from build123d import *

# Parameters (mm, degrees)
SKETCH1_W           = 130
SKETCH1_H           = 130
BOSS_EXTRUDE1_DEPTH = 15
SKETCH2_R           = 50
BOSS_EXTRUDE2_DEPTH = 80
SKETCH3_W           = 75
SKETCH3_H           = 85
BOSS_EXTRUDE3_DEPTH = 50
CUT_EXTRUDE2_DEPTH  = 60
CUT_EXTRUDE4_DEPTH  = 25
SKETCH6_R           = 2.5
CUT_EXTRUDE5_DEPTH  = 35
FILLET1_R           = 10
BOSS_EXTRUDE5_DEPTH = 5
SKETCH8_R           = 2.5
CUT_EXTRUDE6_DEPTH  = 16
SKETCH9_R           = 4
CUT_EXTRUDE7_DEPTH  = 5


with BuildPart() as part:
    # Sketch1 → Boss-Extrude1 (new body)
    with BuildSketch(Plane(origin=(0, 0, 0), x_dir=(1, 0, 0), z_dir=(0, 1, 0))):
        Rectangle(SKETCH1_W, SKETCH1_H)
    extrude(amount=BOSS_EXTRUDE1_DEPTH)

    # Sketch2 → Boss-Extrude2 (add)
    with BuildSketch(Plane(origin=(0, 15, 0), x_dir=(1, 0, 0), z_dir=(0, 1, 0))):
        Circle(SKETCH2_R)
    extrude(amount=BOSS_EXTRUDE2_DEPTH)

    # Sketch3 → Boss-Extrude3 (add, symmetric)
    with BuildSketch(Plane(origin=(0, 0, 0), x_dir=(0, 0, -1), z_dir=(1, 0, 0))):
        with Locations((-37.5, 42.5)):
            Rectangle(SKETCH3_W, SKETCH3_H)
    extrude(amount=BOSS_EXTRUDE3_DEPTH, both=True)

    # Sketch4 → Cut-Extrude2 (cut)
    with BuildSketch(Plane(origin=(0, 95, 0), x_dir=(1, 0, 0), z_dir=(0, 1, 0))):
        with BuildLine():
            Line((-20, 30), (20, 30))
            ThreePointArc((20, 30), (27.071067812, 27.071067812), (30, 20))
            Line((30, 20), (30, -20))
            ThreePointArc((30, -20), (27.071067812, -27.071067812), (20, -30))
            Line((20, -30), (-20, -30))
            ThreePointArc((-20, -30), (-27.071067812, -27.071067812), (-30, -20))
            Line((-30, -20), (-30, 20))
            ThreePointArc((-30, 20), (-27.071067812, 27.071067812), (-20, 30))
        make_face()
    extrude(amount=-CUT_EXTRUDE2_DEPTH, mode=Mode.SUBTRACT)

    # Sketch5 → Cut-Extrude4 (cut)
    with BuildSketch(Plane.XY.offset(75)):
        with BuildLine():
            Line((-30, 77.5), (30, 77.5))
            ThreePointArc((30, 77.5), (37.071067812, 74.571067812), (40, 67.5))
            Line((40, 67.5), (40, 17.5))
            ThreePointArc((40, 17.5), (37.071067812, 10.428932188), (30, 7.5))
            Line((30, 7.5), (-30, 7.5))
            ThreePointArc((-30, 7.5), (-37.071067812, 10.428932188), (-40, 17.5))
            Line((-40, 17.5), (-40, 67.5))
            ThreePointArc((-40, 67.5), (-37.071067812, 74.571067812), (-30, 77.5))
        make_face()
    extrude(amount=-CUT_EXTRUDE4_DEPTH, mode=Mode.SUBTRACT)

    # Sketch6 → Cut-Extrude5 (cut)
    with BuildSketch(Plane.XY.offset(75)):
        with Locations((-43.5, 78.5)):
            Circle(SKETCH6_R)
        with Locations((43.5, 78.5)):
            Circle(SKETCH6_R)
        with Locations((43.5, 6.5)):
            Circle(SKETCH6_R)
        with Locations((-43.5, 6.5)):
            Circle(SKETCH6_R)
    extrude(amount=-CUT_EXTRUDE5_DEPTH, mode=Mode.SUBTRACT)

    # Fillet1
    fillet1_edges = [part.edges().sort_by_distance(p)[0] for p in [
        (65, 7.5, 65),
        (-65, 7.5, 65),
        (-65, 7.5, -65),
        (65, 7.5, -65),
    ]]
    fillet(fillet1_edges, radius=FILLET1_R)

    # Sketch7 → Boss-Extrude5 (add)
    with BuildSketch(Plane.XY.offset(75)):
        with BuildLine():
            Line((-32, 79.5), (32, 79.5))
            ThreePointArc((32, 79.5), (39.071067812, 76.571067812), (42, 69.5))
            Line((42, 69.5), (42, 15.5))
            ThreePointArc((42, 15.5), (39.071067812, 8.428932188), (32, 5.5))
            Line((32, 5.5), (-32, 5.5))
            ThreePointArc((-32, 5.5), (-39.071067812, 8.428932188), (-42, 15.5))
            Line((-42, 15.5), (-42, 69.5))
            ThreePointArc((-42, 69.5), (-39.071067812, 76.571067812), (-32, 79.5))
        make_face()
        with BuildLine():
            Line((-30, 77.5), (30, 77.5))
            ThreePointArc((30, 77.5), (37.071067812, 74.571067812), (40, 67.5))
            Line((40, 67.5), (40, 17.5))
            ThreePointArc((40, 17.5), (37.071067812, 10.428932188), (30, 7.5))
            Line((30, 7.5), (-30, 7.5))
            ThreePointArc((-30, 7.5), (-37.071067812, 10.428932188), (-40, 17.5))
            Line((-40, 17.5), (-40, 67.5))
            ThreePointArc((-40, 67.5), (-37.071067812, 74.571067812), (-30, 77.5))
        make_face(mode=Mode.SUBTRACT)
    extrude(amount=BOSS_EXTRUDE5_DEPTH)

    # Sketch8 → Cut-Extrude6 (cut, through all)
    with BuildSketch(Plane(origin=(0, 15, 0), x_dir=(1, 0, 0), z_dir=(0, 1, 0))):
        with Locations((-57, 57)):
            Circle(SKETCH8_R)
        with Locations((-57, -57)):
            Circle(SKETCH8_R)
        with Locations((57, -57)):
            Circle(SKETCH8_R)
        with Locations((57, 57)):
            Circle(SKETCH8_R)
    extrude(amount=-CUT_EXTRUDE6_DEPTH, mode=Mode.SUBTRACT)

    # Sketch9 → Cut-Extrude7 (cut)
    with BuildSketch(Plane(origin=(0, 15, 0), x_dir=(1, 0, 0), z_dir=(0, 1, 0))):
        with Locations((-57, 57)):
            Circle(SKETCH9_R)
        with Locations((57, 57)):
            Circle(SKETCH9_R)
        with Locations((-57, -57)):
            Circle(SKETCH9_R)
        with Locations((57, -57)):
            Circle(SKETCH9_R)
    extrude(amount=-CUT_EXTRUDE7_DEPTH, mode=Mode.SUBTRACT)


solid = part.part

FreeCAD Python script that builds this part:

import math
import FreeCAD as App
import Part
import Sketcher
Q = App.Units.Quantity


def edges_at(feature, points):
    """Names of the edges that pass closest to the given points."""
    edges = feature.Shape.Edges
    near = lambda p: min(range(len(edges)), key=lambda i: edges[i].distToShape(Part.Vertex(*p))[0])
    return sorted({f"Edge{near(p) + 1}" for p in points})


def add_polygon(sketch, points):
    """Adds a closed chain of lines whose ends are joined by coincident constraints."""
    first, n = sketch.GeometryCount, len(points)
    for a, b in zip(points, points[1:] + points[:1]):
        sketch.addGeometry(Part.LineSegment(App.Vector(*a, 0), App.Vector(*b, 0)), False)
    for i in range(n):
        sketch.addConstraint(Sketcher.Constraint("Coincident", first + i, 2, first + (i + 1) % n, 1))

doc = App.newDocument("Part")
params = doc.addObject("Spreadsheet::Sheet", "Params")
for row, (alias, value) in enumerate([
    ("sketch1_width", "130 mm"),
    ("pad1_length", "15 mm"),
    ("sketch2_diameter", "100 mm"),
    ("pad2_length", "80 mm"),
    ("sketch3_width", "85 mm"),
    ("sketch3_height", "75 mm"),
    ("pad3_length", "100 mm"),
    ("sketch4_radius", "10 mm"),
    ("sketch4_width", "40 mm"),
    ("pocket1_length", "60 mm"),
    ("sketch5_radius", "10 mm"),
    ("sketch5_width", "60 mm"),
    ("sketch5_height", "50 mm"),
    ("pocket2_length", "25 mm"),
    ("sketch6_diameter", "5 mm"),
    ("pocket3_length", "35 mm"),
    ("fillet_radius", "10 mm"),
    ("sketch7_radius", "10 mm"),
    ("sketch7_width", "64 mm"),
    ("sketch7_width2", "60 mm"),
    ("sketch7_height", "54 mm"),
    ("sketch7_height2", "50 mm"),
    ("pad4_length", "5 mm"),
    ("sketch8_diameter", "5 mm"),
    ("sketch9_diameter", "8 mm"),
    ("pocket5_length", "5 mm"),
], start=1):
    params.set(f"A{row}", alias)
    params.set(f"B{row}", "=" + value)
    params.setAlias(f"B{row}", alias)

body = doc.addObject("PartDesign::Body", "Body")

# Sketch on XZ plane
sketch1 = body.newObject("Sketcher::SketchObject", "Sketch")
sketch1.AttachmentSupport = (doc.getObject("XZ_Plane"), [""])
sketch1.MapMode = "FlatFace"
add_polygon(sketch1, [(-65, -65), (-65, 65), (65, 65), (65, -65)])  # lines 0-3
sketch1.addConstraint([
    Sketcher.Constraint("Vertical", 0),
    Sketcher.Constraint("Horizontal", 1),
    Sketcher.Constraint("Vertical", 2),
    Sketcher.Constraint("Horizontal", 3),
    Sketcher.Constraint("Symmetric", 0, 2, 2, 2, -1, 1),
    Sketcher.Constraint("Equal", 3, 0),
    Sketcher.Constraint("DistanceX", 1, 1, 1, 2, Q("130 mm")),
])
sketch1.setExpression("Constraints[10]", "Params.sketch1_width")
pad1 = body.newObject("PartDesign::Pad", "Pad")
pad1.Profile = sketch1
pad1.setExpression("Length", "Params.pad1_length")
pad1.Reversed = True

# Sketch on XZ plane
sketch2 = body.newObject("Sketcher::SketchObject", "Sketch001")
sketch2.AttachmentSupport = (doc.getObject("XZ_Plane"), [""])
sketch2.MapMode = "FlatFace"
sketch2.AttachmentOffset = App.Placement(App.Vector(0, 0, -15), App.Rotation())
sketch2.addGeometry(Part.Circle(App.Vector(0, 0, 0), App.Vector(0, 0, 1), 50), False)
sketch2.addConstraint([
    Sketcher.Constraint("Coincident", 0, 3, -1, 1),
    Sketcher.Constraint("Diameter", 0, Q("100 mm")),
])
sketch2.setExpression("Constraints[1]", "Params.sketch2_diameter")
pad2 = body.newObject("PartDesign::Pad", "Pad001")
pad2.Profile = sketch2
pad2.setExpression("Length", "Params.pad2_length")
pad2.Reversed = True

# Sketch on YZ plane
sketch3 = body.newObject("Sketcher::SketchObject", "Sketch002")
sketch3.AttachmentSupport = (doc.getObject("YZ_Plane"), [""])
sketch3.MapMode = "FlatFace"
add_polygon(sketch3, [(85, 75), (0, 75), (0, 0), (85, 0)])  # lines 0-3
sketch3.addConstraint([
    Sketcher.Constraint("Horizontal", 0),
    Sketcher.Constraint("Vertical", 1),
    Sketcher.Constraint("Horizontal", 2),
    Sketcher.Constraint("Vertical", 3),
    Sketcher.Constraint("Coincident", 1, 2, -1, 1),
    Sketcher.Constraint("DistanceX", 0, 2, 0, 1, Q("85 mm")),
    Sketcher.Constraint("DistanceY", 1, 2, 1, 1, Q("75 mm")),
])
sketch3.setExpression("Constraints[9]", "Params.sketch3_width")
sketch3.setExpression("Constraints[10]", "Params.sketch3_height")
pad3 = body.newObject("PartDesign::Pad", "Pad002")
pad3.Profile = sketch3
pad3.setExpression("Length", "Params.pad3_length")
pad3.Midplane = True

# Sketch on XZ plane
sketch4 = body.newObject("Sketcher::SketchObject", "Sketch003")
sketch4.AttachmentSupport = (doc.getObject("XZ_Plane"), [""])
sketch4.MapMode = "FlatFace"
sketch4.AttachmentOffset = App.Placement(App.Vector(0, 0, -95), App.Rotation())
sketch4.addGeometry([
    Part.LineSegment(App.Vector(20, -30, 0), App.Vector(-20, -30, 0)),  # 0
    Part.ArcOfCircle(Part.Circle(App.Vector(-20, -20, 0), App.Vector(0, 0, 1), 10), math.radians(180), math.radians(270)),  # 1
    Part.LineSegment(App.Vector(-30, -20, 0), App.Vector(-30, 20, 0)),  # 2
    Part.ArcOfCircle(Part.Circle(App.Vector(-20, 20, 0), App.Vector(0, 0, 1), 10), math.radians(90), math.radians(180)),  # 3
    Part.LineSegment(App.Vector(-20, 30, 0), App.Vector(20, 30, 0)),  # 4
    Part.ArcOfCircle(Part.Circle(App.Vector(20, 20, 0), App.Vector(0, 0, 1), 10), math.radians(0), math.radians(90)),  # 5
    Part.LineSegment(App.Vector(30, 20, 0), App.Vector(30, -20, 0)),  # 6
    Part.ArcOfCircle(Part.Circle(App.Vector(20, -20, 0), App.Vector(0, 0, 1), 10), math.radians(-90), math.radians(0)),  # 7
], False)
sketch4.addConstraint([
    Sketcher.Constraint("Tangent", 0, 2, 1, 2),
    Sketcher.Constraint("Tangent", 1, 1, 2, 1),
    Sketcher.Constraint("Tangent", 2, 2, 3, 2),
    Sketcher.Constraint("Tangent", 3, 1, 4, 1),
    Sketcher.Constraint("Tangent", 4, 2, 5, 2),
    Sketcher.Constraint("Tangent", 5, 1, 6, 1),
    Sketcher.Constraint("Tangent", 6, 2, 7, 2),
    Sketcher.Constraint("Tangent", 7, 1, 0, 1),
    Sketcher.Constraint("Horizontal", 0),
    Sketcher.Constraint("Vertical", 2),
    Sketcher.Constraint("Horizontal", 4),
    Sketcher.Constraint("Vertical", 6),
    Sketcher.Constraint("Equal", 1, 3),
    Sketcher.Constraint("Equal", 3, 5),
    Sketcher.Constraint("Equal", 5, 7),
    Sketcher.Constraint("Symmetric", 1, 3, 5, 3, -1, 1),
    Sketcher.Constraint("Equal", 4, 2),
    Sketcher.Constraint("Radius", 1, Q("10 mm")),
    Sketcher.Constraint("DistanceX", 0, 2, 0, 1, Q("40 mm")),
])
sketch4.setExpression("Constraints[17]", "Params.sketch4_radius")
sketch4.setExpression("Constraints[18]", "Params.sketch4_width")
pocket1 = body.newObject("PartDesign::Pocket", "Pocket")
pocket1.Profile = sketch4
pocket1.setExpression("Length", "Params.pocket1_length")
pocket1.Reversed = True

# Sketch on XY plane
sketch5 = body.newObject("Sketcher::SketchObject", "Sketch004")
sketch5.AttachmentSupport = (doc.getObject("XY_Plane"), [""])
sketch5.MapMode = "FlatFace"
sketch5.AttachmentOffset = App.Placement(App.Vector(0, 0, 75), App.Rotation())
sketch5.addGeometry([
    Part.LineSegment(App.Vector(30, 78, 0), App.Vector(-30, 78, 0)),  # 0
    Part.ArcOfCircle(Part.Circle(App.Vector(-30, 68, 0), App.Vector(0, 0, 1), 10), math.radians(90), math.radians(180)),  # 1
    Part.LineSegment(App.Vector(-40, 68, 0), App.Vector(-40, 18, 0)),  # 2
    Part.ArcOfCircle(Part.Circle(App.Vector(-30, 18, 0), App.Vector(0, 0, 1), 10), math.radians(180), math.radians(270)),  # 3
    Part.LineSegment(App.Vector(-30, 8, 0), App.Vector(30, 8, 0)),  # 4
    Part.ArcOfCircle(Part.Circle(App.Vector(30, 18, 0), App.Vector(0, 0, 1), 10), math.radians(-90), math.radians(0)),  # 5
    Part.LineSegment(App.Vector(40, 18, 0), App.Vector(40, 68, 0)),  # 6
    Part.ArcOfCircle(Part.Circle(App.Vector(30, 68, 0), App.Vector(0, 0, 1), 10), math.radians(0), math.radians(90)),  # 7
], False)
sketch5.addConstraint([
    Sketcher.Constraint("Tangent", 0, 2, 1, 1),
    Sketcher.Constraint("Tangent", 1, 2, 2, 1),
    Sketcher.Constraint("Tangent", 2, 2, 3, 1),
    Sketcher.Constraint("Tangent", 3, 2, 4, 1),
    Sketcher.Constraint("Tangent", 4, 2, 5, 1),
    Sketcher.Constraint("Tangent", 5, 2, 6, 1),
    Sketcher.Constraint("Tangent", 6, 2, 7, 1),
    Sketcher.Constraint("Tangent", 7, 2, 0, 1),
    Sketcher.Constraint("Horizontal", 0),
    Sketcher.Constraint("Vertical", 2),
    Sketcher.Constraint("Horizontal", 4),
    Sketcher.Constraint("Vertical", 6),
    Sketcher.Constraint("Equal", 1, 3),
    Sketcher.Constraint("Equal", 3, 5),
    Sketcher.Constraint("Equal", 5, 7),
    Sketcher.Constraint("Radius", 1, Q("10 mm")),
    Sketcher.Constraint("DistanceX", 0, 2, 0, 1, Q("60 mm")),
    Sketcher.Constraint("DistanceY", 2, 2, 2, 1, Q("50 mm")),
    Sketcher.Constraint("DistanceX", 1, 3, -1, 1, Q("30 mm")),
    Sketcher.Constraint("DistanceY", -1, 1, 1, 3, Q("67.5 mm")),
])
sketch5.setExpression("Constraints[15]", "Params.sketch5_radius")
sketch5.setExpression("Constraints[16]", "Params.sketch5_width")
sketch5.setExpression("Constraints[17]", "Params.sketch5_height")
pocket2 = body.newObject("PartDesign::Pocket", "Pocket001")
pocket2.Profile = sketch5
pocket2.setExpression("Length", "Params.pocket2_length")

# Sketch on XY plane
sketch6 = body.newObject("Sketcher::SketchObject", "Sketch005")
sketch6.AttachmentSupport = (doc.getObject("XY_Plane"), [""])
sketch6.MapMode = "FlatFace"
sketch6.AttachmentOffset = App.Placement(App.Vector(0, 0, 75), App.Rotation())
sketch6.addGeometry([
    Part.Circle(App.Vector(-43.5, 78.5, 0), App.Vector(0, 0, 1), 2.5),
    Part.Circle(App.Vector(43.5, 78.5, 0), App.Vector(0, 0, 1), 2.5),
    Part.Circle(App.Vector(43.5, 6.5, 0), App.Vector(0, 0, 1), 2.5),
    Part.Circle(App.Vector(-43.5, 6.5, 0), App.Vector(0, 0, 1), 2.5),
], False)
sketch6.addConstraint([
    Sketcher.Constraint("Equal", 0, 1),
    Sketcher.Constraint("Equal", 1, 2),
    Sketcher.Constraint("Equal", 2, 3),
    Sketcher.Constraint("Symmetric", 0, 3, 1, 3, -2),
    Sketcher.Constraint("Symmetric", 2, 3, 3, 3, -2),
    Sketcher.Constraint("Vertical", 1, 3, 2, 3),
    Sketcher.Constraint("Diameter", 0, Q("5 mm")),
    Sketcher.Constraint("DistanceX", 0, 3, 1, 3, Q("87 mm")),
    Sketcher.Constraint("DistanceY", 2, 3, 1, 3, Q("72 mm")),
    Sketcher.Constraint("DistanceY", -1, 1, 0, 3, Q("78.5 mm")),
])
sketch6.setExpression("Constraints[6]", "Params.sketch6_diameter")
pocket3 = body.newObject("PartDesign::Pocket", "Pocket002")
pocket3.Profile = sketch6
pocket3.setExpression("Length", "Params.pocket3_length")
doc.recompute()

fillet = body.newObject("PartDesign::Fillet", "Fillet")
fillet.Base = (pocket3, edges_at(pocket3, [
    (65, 7.5, 65),
    (-65, 7.5, 65),
    (-65, 7.5, -65),
    (65, 7.5, -65),
]))
fillet.setExpression("Radius", "Params.fillet_radius")

# Sketch on XY plane
sketch7 = body.newObject("Sketcher::SketchObject", "Sketch006")
sketch7.AttachmentSupport = (doc.getObject("XY_Plane"), [""])
sketch7.MapMode = "FlatFace"
sketch7.AttachmentOffset = App.Placement(App.Vector(0, 0, 75), App.Rotation())
sketch7.addGeometry([
    Part.LineSegment(App.Vector(32, 80, 0), App.Vector(-32, 80, 0)),  # 0
    Part.ArcOfCircle(Part.Circle(App.Vector(-32, 70, 0), App.Vector(0, 0, 1), 10), math.radians(90), math.radians(180)),  # 1
    Part.LineSegment(App.Vector(-42, 70, 0), App.Vector(-42, 16, 0)),  # 2
    Part.ArcOfCircle(Part.Circle(App.Vector(-32, 16, 0), App.Vector(0, 0, 1), 10), math.radians(180), math.radians(270)),  # 3
    Part.LineSegment(App.Vector(-32, 6, 0), App.Vector(32, 6, 0)),  # 4
    Part.ArcOfCircle(Part.Circle(App.Vector(32, 16, 0), App.Vector(0, 0, 1), 10), math.radians(-90), math.radians(0)),  # 5
    Part.LineSegment(App.Vector(42, 16, 0), App.Vector(42, 70, 0)),  # 6
    Part.ArcOfCircle(Part.Circle(App.Vector(32, 70, 0), App.Vector(0, 0, 1), 10), math.radians(0), math.radians(90)),  # 7
    Part.LineSegment(App.Vector(-30, 78, 0), App.Vector(30, 78, 0)),  # 8
    Part.ArcOfCircle(Part.Circle(App.Vector(30, 68, 0), App.Vector(0, 0, 1), 10), math.radians(0), math.radians(90)),  # 9
    Part.LineSegment(App.Vector(40, 68, 0), App.Vector(40, 18, 0)),  # 10
    Part.ArcOfCircle(Part.Circle(App.Vector(30, 18, 0), App.Vector(0, 0, 1), 10), math.radians(-90), math.radians(0)),  # 11
    Part.LineSegment(App.Vector(30, 8, 0), App.Vector(-30, 8, 0)),  # 12
    Part.ArcOfCircle(Part.Circle(App.Vector(-30, 18, 0), App.Vector(0, 0, 1), 10), math.radians(180), math.radians(270)),  # 13
    Part.LineSegment(App.Vector(-40, 18, 0), App.Vector(-40, 68, 0)),  # 14
    Part.ArcOfCircle(Part.Circle(App.Vector(-30, 68, 0), App.Vector(0, 0, 1), 10), math.radians(90), math.radians(180)),  # 15
], False)
sketch7.addConstraint([
    Sketcher.Constraint("Tangent", 0, 2, 1, 1),
    Sketcher.Constraint("Tangent", 1, 2, 2, 1),
    Sketcher.Constraint("Tangent", 2, 2, 3, 1),
    Sketcher.Constraint("Tangent", 3, 2, 4, 1),
    Sketcher.Constraint("Tangent", 4, 2, 5, 1),
    Sketcher.Constraint("Tangent", 5, 2, 6, 1),
    Sketcher.Constraint("Tangent", 6, 2, 7, 1),
    Sketcher.Constraint("Tangent", 7, 2, 0, 1),
    Sketcher.Constraint("Tangent", 8, 2, 9, 2),
    Sketcher.Constraint("Tangent", 9, 1, 10, 1),
    Sketcher.Constraint("Tangent", 10, 2, 11, 2),
    Sketcher.Constraint("Tangent", 11, 1, 12, 1),
    Sketcher.Constraint("Tangent", 12, 2, 13, 2),
    Sketcher.Constraint("Tangent", 13, 1, 14, 1),
    Sketcher.Constraint("Tangent", 14, 2, 15, 2),
    Sketcher.Constraint("Tangent", 15, 1, 8, 1),
    Sketcher.Constraint("Horizontal", 0),
    Sketcher.Constraint("Vertical", 2),
    Sketcher.Constraint("Horizontal", 4),
    Sketcher.Constraint("Vertical", 6),
    Sketcher.Constraint("Horizontal", 8),
    Sketcher.Constraint("Vertical", 10),
    Sketcher.Constraint("Horizontal", 12),
    Sketcher.Constraint("Vertical", 14),
    Sketcher.Constraint("Equal", 1, 3),
    Sketcher.Constraint("Equal", 3, 5),
    Sketcher.Constraint("Equal", 5, 7),
    Sketcher.Constraint("Equal", 7, 9),
    Sketcher.Constraint("Equal", 9, 11),
    Sketcher.Constraint("Equal", 11, 13),
    Sketcher.Constraint("Equal", 13, 15),
    Sketcher.Constraint("Radius", 1, Q("10 mm")),
    Sketcher.Constraint("DistanceX", 0, 2, 0, 1, Q("64 mm")),
    Sketcher.Constraint("DistanceX", 8, 1, 8, 2, Q("60 mm")),
    Sketcher.Constraint("DistanceY", 2, 2, 2, 1, Q("54 mm")),
    Sketcher.Constraint("DistanceY", 10, 2, 10, 1, Q("50 mm")),
    Sketcher.Constraint("DistanceX", 1, 3, -1, 1, Q("32 mm")),
    Sketcher.Constraint("DistanceX", -1, 1, 9, 3, Q("30 mm")),
    Sketcher.Constraint("DistanceY", 9, 3, 7, 3, Q("2 mm")),
    Sketcher.Constraint("DistanceY", -1, 1, 1, 3, Q("69.5 mm")),
])
sketch7.setExpression("Constraints[31]", "Params.sketch7_radius")
sketch7.setExpression("Constraints[32]", "Params.sketch7_width")
sketch7.setExpression("Constraints[33]", "Params.sketch7_width2")
sketch7.setExpression("Constraints[34]", "Params.sketch7_height")
sketch7.setExpression("Constraints[35]", "Params.sketch7_height2")
pad4 = body.newObject("PartDesign::Pad", "Pad003")
pad4.Profile = sketch7
pad4.setExpression("Length", "Params.pad4_length")

# Sketch on XZ plane
sketch8 = body.newObject("Sketcher::SketchObject", "Sketch007")
sketch8.AttachmentSupport = (doc.getObject("XZ_Plane"), [""])
sketch8.MapMode = "FlatFace"
sketch8.AttachmentOffset = App.Placement(App.Vector(0, 0, -15), App.Rotation())
sketch8.addGeometry([
    Part.Circle(App.Vector(-57, -57, 0), App.Vector(0, 0, 1), 2.5),
    Part.Circle(App.Vector(-57, 57, 0), App.Vector(0, 0, 1), 2.5),
    Part.Circle(App.Vector(57, 57, 0), App.Vector(0, 0, 1), 2.5),
    Part.Circle(App.Vector(57, -57, 0), App.Vector(0, 0, 1), 2.5),
], False)
sketch8.addConstraint([
    Sketcher.Constraint("Equal", 0, 1),
    Sketcher.Constraint("Equal", 1, 2),
    Sketcher.Constraint("Equal", 2, 3),
    Sketcher.Constraint("Symmetric", 0, 3, 2, 3, -1, 1),
    Sketcher.Constraint("Symmetric", 1, 3, 3, 3, -1, 1),
    Sketcher.Constraint("Symmetric", 1, 3, 2, 3, -2),
    Sketcher.Constraint("Diameter", 0, Q("5 mm")),
    Sketcher.Constraint("DistanceX", 0, 3, -1, 1, Q("57 mm")),
    Sketcher.Constraint("DistanceY", 0, 3, -1, 1, Q("57 mm")),
])
sketch8.setExpression("Constraints[6]", "Params.sketch8_diameter")
pocket4 = body.newObject("PartDesign::Pocket", "Pocket003")
pocket4.Profile = sketch8
pocket4.Type = "ThroughAll"
pocket4.Reversed = True

# Sketch on XZ plane
sketch9 = body.newObject("Sketcher::SketchObject", "Sketch008")
sketch9.AttachmentSupport = (doc.getObject("XZ_Plane"), [""])
sketch9.MapMode = "FlatFace"
sketch9.AttachmentOffset = App.Placement(App.Vector(0, 0, -15), App.Rotation())
sketch9.addGeometry([
    Part.Circle(App.Vector(-57, -57, 0), App.Vector(0, 0, 1), 4),
    Part.Circle(App.Vector(57, -57, 0), App.Vector(0, 0, 1), 4),
    Part.Circle(App.Vector(-57, 57, 0), App.Vector(0, 0, 1), 4),
    Part.Circle(App.Vector(57, 57, 0), App.Vector(0, 0, 1), 4),
], False)
sketch9.addConstraint([
    Sketcher.Constraint("Equal", 0, 1),
    Sketcher.Constraint("Equal", 1, 2),
    Sketcher.Constraint("Equal", 2, 3),
    Sketcher.Constraint("Symmetric", 1, 3, 2, 3, -1, 1),
    Sketcher.Constraint("Symmetric", 0, 3, 3, 3, -1, 1),
    Sketcher.Constraint("Symmetric", 0, 3, 1, 3, -2),
    Sketcher.Constraint("Diameter", 0, Q("8 mm")),
    Sketcher.Constraint("DistanceX", 0, 3, -1, 1, Q("57 mm")),
    Sketcher.Constraint("DistanceY", 0, 3, -1, 1, Q("57 mm")),
])
sketch9.setExpression("Constraints[6]", "Params.sketch9_diameter")
pocket5 = body.newObject("PartDesign::Pocket", "Pocket004")
pocket5.Profile = sketch9
pocket5.setExpression("Length", "Params.pocket5_length")
pocket5.Reversed = True

doc.recompute()
